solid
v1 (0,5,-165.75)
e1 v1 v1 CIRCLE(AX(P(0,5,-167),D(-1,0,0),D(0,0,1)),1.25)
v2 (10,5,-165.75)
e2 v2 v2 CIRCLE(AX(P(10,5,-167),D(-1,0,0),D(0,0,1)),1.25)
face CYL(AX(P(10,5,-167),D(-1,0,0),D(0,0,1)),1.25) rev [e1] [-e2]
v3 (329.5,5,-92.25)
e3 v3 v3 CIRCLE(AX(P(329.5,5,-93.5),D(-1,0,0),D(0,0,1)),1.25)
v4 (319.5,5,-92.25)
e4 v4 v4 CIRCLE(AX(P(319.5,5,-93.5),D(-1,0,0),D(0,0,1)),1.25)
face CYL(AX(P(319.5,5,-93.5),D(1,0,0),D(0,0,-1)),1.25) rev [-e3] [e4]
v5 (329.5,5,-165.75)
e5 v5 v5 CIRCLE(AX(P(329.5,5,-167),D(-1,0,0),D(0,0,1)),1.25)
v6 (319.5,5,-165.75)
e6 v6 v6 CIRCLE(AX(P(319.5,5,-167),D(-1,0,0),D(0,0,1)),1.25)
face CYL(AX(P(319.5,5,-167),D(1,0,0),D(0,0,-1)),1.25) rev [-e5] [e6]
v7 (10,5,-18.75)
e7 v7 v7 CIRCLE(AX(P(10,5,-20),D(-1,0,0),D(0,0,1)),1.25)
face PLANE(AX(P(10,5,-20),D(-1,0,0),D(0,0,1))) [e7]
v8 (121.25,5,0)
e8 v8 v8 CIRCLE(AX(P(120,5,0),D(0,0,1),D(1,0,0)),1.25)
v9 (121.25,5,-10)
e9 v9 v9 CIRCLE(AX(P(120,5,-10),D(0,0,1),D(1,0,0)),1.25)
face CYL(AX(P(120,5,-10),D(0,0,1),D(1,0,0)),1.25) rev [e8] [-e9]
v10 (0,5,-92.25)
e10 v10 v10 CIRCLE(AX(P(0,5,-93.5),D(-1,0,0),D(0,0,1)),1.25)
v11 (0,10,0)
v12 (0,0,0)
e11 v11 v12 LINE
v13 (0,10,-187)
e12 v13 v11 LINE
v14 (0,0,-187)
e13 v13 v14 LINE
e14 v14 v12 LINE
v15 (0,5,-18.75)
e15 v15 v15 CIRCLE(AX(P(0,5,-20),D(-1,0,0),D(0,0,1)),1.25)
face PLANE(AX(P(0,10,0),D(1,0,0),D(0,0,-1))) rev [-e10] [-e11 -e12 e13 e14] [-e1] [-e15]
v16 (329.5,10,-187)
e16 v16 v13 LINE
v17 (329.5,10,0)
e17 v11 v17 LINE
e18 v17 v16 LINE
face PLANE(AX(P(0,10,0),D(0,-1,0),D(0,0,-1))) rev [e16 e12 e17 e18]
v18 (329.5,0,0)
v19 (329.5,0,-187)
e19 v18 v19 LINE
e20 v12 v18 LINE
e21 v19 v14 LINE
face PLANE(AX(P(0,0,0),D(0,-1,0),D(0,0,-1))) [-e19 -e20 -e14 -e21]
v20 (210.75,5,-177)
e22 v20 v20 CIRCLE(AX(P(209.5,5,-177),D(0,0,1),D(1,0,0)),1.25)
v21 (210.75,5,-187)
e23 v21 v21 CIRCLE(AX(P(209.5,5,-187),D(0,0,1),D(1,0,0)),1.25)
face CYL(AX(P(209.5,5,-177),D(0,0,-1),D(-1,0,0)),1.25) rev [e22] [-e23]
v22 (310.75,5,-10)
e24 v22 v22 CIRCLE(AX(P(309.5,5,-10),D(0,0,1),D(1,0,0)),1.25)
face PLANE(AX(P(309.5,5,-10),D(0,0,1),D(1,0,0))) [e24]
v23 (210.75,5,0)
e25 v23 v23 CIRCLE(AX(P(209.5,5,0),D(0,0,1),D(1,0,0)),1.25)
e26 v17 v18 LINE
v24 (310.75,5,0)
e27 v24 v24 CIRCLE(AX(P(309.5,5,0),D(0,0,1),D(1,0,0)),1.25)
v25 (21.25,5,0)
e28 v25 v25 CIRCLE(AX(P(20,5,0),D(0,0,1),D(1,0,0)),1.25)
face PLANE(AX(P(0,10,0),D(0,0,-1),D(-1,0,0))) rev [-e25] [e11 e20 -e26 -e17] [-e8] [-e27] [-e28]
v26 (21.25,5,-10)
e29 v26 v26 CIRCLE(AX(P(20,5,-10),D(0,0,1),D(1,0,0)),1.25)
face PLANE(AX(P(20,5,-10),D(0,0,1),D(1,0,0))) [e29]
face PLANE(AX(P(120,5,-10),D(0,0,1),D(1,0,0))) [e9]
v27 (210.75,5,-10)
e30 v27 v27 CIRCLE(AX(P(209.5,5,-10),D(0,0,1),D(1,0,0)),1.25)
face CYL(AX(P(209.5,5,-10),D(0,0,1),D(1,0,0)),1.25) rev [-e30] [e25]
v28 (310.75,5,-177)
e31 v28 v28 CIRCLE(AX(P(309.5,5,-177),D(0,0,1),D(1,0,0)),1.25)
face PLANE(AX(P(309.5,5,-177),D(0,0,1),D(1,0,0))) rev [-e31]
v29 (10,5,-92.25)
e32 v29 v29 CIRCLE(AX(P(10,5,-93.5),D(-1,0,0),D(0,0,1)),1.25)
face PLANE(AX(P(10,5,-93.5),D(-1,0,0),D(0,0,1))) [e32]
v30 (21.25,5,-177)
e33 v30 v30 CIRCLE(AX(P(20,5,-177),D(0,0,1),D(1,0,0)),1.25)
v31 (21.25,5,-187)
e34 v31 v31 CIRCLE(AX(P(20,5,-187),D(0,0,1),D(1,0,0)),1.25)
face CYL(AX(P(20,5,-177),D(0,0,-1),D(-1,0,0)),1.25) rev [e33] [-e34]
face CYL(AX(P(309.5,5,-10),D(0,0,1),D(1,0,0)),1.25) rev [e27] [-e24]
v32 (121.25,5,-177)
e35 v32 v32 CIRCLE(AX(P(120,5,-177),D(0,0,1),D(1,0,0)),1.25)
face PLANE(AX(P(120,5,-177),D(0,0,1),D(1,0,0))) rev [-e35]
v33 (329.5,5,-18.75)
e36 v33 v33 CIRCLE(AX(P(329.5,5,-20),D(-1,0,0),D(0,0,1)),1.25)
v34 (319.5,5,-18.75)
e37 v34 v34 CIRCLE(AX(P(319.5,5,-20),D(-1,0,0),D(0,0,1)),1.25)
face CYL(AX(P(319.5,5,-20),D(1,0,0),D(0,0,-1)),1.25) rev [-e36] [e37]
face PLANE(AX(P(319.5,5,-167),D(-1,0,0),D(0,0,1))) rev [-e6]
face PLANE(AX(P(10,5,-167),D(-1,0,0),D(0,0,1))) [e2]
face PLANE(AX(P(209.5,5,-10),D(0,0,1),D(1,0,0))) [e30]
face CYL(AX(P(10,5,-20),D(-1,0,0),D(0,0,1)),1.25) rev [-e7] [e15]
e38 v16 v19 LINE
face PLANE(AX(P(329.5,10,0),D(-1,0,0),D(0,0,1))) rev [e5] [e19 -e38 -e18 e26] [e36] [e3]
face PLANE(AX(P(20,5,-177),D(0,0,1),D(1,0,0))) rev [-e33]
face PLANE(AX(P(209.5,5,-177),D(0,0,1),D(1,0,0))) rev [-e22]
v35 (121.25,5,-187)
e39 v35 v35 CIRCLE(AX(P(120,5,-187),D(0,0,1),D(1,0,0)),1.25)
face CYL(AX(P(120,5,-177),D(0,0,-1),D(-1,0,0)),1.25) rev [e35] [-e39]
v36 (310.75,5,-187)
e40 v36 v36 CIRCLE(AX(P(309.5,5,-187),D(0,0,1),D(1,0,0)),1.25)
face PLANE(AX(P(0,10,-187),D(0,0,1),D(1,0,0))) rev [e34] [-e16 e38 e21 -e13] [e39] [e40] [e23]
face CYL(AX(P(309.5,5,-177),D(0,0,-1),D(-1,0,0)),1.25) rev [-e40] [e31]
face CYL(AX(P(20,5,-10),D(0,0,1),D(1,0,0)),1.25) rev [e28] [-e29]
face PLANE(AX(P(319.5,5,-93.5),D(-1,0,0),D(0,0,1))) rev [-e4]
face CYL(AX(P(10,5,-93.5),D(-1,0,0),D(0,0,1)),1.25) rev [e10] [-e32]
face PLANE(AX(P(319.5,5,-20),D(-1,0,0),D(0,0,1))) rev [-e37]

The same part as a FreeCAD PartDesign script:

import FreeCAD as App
import Part
import Sketcher

doc = App.newDocument("Part")
body = doc.addObject("PartDesign::Body", "Body")

# Sketch on XZ plane
sketch1 = body.newObject("Sketcher::SketchObject", "Sketch")
sketch1.AttachmentSupport = (doc.getObject("XZ_Plane"), [""])
sketch1.MapMode = "FlatFace"
sketch1.addGeometry([
    Part.LineSegment(App.Vector(0, -187, 0), App.Vector(0, 0, 0)),
    Part.LineSegment(App.Vector(0, 0, 0), App.Vector(329.5, 0, 0)),
    Part.LineSegment(App.Vector(329.5, 0, 0), App.Vector(329.5, -187, 0)),
    Part.LineSegment(App.Vector(329.5, -187, 0), App.Vector(0, -187, 0)),
], False)
sketch1.addConstraint([
    Sketcher.Constraint("Coincident", 0, 2, 1, 1),
    Sketcher.Constraint("Coincident", 1, 2, 2, 1),
    Sketcher.Constraint("Coincident", 2, 2, 3, 1),
    Sketcher.Constraint("Coincident", 3, 2, 0, 1),
    Sketcher.Constraint("Vertical", 0),
    Sketcher.Constraint("Horizontal", 1),
    Sketcher.Constraint("Vertical", 2),
    Sketcher.Constraint("Horizontal", 3),
    Sketcher.Constraint("Coincident", 0, 2, -1, 1),
    Sketcher.Constraint("DistanceY", 0, 1, 0, 2, 187.0),
    Sketcher.Constraint("DistanceX", 1, 1, 1, 2, 329.5),
])
pad1 = body.newObject("PartDesign::Pad", "Pad")
pad1.Profile = sketch1
pad1.Length = 10
pad1.Reversed = True

# Sketch on XY plane
sketch2 = body.newObject("Sketcher::SketchObject", "Sketch001")
sketch2.AttachmentSupport = (doc.getObject("XY_Plane"), [""])
sketch2.MapMode = "FlatFace"
sketch2.addGeometry([
    Part.Circle(App.Vector(20, 5, 0), App.Vector(0, 0, 1), 1.25),
    Part.Circle(App.Vector(120, 5, 0), App.Vector(0, 0, 1), 1.25),
    Part.Circle(App.Vector(209.5, 5, 0), App.Vector(0, 0, 1), 1.25),
    Part.Circle(App.Vector(309.5, 5, 0), App.Vector(0, 0, 1), 1.25),
], False)
sketch2.addConstraint([
    Sketcher.Constraint("Equal", 0, 1),
    Sketcher.Constraint("Equal", 1, 2),
    Sketcher.Constraint("Equal", 2, 3),
    Sketcher.Constraint("Horizontal", 0, 3, 1, 3),
    Sketcher.Constraint("Horizontal", 1, 3, 2, 3),
    Sketcher.Constraint("Horizontal", 2, 3, 3, 3),
    Sketcher.Constraint("Diameter", 0, 2.5),
    Sketcher.Constraint("DistanceX", -1, 1, 0, 3, 20.0),
    Sketcher.Constraint("DistanceY", -1, 1, 0, 3, 5.0),
    Sketcher.Constraint("DistanceX", -1, 1, 1, 3, 120.0),
    Sketcher.Constraint("DistanceX", 2, 3, 3, 3, 100.0),
    Sketcher.Constraint("DistanceX", -1, 1, 2, 3, 209.5),
])
pocket1 = body.newObject("PartDesign::Pocket", "Pocket")
pocket1.Profile = sketch2
pocket1.Length = 10

# Sketch on XY plane
sketch3 = body.newObject("Sketcher::SketchObject", "Sketch002")
sketch3.AttachmentSupport = (doc.getObject("XY_Plane"), [""])
sketch3.MapMode = "FlatFace"
sketch3.AttachmentOffset = App.Placement(App.Vector(0, 0, -187), App.Rotation())
sketch3.addGeometry([
    Part.Circle(App.Vector(20, 5, 0), App.Vector(0, 0, 1), 1.25),
    Part.Circle(App.Vector(120, 5, 0), App.Vector(0, 0, 1), 1.25),
    Part.Circle(App.Vector(209.5, 5, 0), App.Vector(0, 0, 1), 1.25),
    Part.Circle(App.Vector(309.5, 5, 0), App.Vector(0, 0, 1), 1.25),
], False)
sketch3.addConstraint([
    Sketcher.Constraint("Equal", 0, 1),
    Sketcher.Constraint("Equal", 1, 2),
    Sketcher.Constraint("Equal", 2, 3),
    Sketcher.Constraint("Horizontal", 0, 3, 1, 3),
    Sketcher.Constraint("Horizontal", 1, 3, 2, 3),
    Sketcher.Constraint("Horizontal", 2, 3, 3, 3),
    Sketcher.Constraint("Diameter", 0, 2.5),
    Sketcher.Constraint("DistanceX", -1, 1, 0, 3, 20.0),
    Sketcher.Constraint("DistanceY", -1, 1, 0, 3, 5.0),
    Sketcher.Constraint("DistanceX", -1, 1, 1, 3, 120.0),
    Sketcher.Constraint("DistanceX", 2, 3, 3, 3, 100.0),
    Sketcher.Constraint("DistanceX", -1, 1, 2, 3, 209.5),
])
pocket2 = body.newObject("PartDesign::Pocket", "Pocket001")
pocket2.Profile = sketch3
pocket2.Length = 10
pocket2.Reversed = True

# Sketch on YZ plane
sketch4 = body.newObject("Sketcher::SketchObject", "Sketch003")
sketch4.AttachmentSupport = (doc.getObject("YZ_Plane"), [""])
sketch4.MapMode = "FlatFace"
sketch4.addGeometry([
    Part.Circle(App.Vector(5, -167, 0), App.Vector(0, 0, 1), 1.25),
    Part.Circle(App.Vector(5, -93.5, 0), App.Vector(0, 0, 1), 1.25),
    Part.Circle(App.Vector(5, -20, 0), App.Vector(0, 0, 1), 1.25),
], False)
sketch4.addConstraint([
    Sketcher.Constraint("Equal", 0, 1),
    Sketcher.Constraint("Equal", 1, 2),
    Sketcher.Constraint("Vertical", 0, 3, 1, 3),
    Sketcher.Constraint("Vertical", 1, 3, 2, 3),
    Sketcher.Constraint("Diameter", 0, 2.5),
    Sketcher.Constraint("DistanceX", -1, 1, 0, 3, 5.0),
    Sketcher.Constraint("DistanceY", 0, 3, -1, 1, 167.0),
    Sketcher.Constraint("DistanceY", 2, 3, -1, 1, 20.0),
    Sketcher.Constraint("DistanceY", 1, 3, -1, 1, 93.5),
])
pocket3 = body.newObject("PartDesign::Pocket", "Pocket002")
pocket3.Profile = sketch4
pocket3.Length = 10
pocket3.Reversed = True

# Sketch on YZ plane
sketch5 = body.newObject("Sketcher::SketchObject", "Sketch004")
sketch5.AttachmentSupport = (doc.getObject("YZ_Plane"), [""])
sketch5.MapMode = "FlatFace"
sketch5.AttachmentOffset = App.Placement(App.Vector(0, 0, 329.5), App.Rotation())
sketch5.addGeometry([
    Part.Circle(App.Vector(5, -167, 0), App.Vector(0, 0, 1), 1.25),
    Part.Circle(App.Vector(5, -93.5, 0), App.Vector(0, 0, 1), 1.25),
    Part.Circle(App.Vector(5, -20, 0), App.Vector(0, 0, 1), 1.25),
], False)
sketch5.addConstraint([
    Sketcher.Constraint("Equal", 0, 1),
    Sketcher.Constraint("Equal", 1, 2),
    Sketcher.Constraint("Vertical", 0, 3, 1, 3),
    Sketcher.Constraint("Vertical", 1, 3, 2, 3),
    Sketcher.Constraint("Diameter", 0, 2.5),
    Sketcher.Constraint("DistanceX", -1, 1, 0, 3, 5.0),
    Sketcher.Constraint("DistanceY", 0, 3, -1, 1, 167.0),
    Sketcher.Constraint("DistanceY", 2, 3, -1, 1, 20.0),
    Sketcher.Constraint("DistanceY", 1, 3, -1, 1, 93.5),
])
pocket4 = body.newObject("PartDesign::Pocket", "Pocket003")
pocket4.Profile = sketch5
pocket4.Length = 10

doc.recompute()
